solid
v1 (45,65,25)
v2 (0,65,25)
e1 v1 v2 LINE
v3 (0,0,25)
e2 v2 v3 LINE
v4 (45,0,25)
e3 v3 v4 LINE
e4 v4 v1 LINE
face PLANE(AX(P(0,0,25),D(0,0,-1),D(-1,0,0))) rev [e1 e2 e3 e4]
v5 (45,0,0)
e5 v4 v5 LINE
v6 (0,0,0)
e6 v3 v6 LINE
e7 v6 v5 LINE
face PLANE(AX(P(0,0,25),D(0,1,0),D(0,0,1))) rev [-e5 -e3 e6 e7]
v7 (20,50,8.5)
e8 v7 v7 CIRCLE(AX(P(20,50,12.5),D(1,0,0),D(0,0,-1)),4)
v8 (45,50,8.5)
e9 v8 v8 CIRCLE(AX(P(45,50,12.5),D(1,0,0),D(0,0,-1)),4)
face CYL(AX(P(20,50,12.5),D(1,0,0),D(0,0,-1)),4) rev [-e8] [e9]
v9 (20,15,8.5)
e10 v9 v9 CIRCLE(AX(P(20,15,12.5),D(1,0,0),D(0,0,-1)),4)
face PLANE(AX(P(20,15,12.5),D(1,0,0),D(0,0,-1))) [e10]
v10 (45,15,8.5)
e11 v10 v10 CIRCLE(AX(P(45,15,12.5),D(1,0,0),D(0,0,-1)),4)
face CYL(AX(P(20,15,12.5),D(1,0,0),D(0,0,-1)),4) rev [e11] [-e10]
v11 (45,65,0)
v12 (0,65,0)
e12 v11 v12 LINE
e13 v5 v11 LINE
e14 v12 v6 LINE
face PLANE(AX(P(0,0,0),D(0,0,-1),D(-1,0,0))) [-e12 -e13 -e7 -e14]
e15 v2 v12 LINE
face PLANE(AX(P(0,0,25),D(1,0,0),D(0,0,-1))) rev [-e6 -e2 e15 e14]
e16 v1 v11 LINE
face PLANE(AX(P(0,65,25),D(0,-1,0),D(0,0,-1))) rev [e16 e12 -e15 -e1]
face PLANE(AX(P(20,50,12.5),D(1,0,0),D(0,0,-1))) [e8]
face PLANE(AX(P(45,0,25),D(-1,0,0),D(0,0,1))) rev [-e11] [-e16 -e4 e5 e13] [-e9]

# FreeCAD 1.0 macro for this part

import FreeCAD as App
import Part
import Sketcher
from FreeCAD import Vector

doc = App.newDocument("Part")
body = doc.addObject("PartDesign::Body", "Body")

# Sketch on XY plane
sketch1 = body.newObject("Sketcher::SketchObject", "Sketch")
sketch1.AttachmentSupport = (doc.getObject("XY_Plane"), [""])
sketch1.MapMode = "FlatFace"
sketch1.addGeometry(Part.LineSegment(Vector(0, 65, 0), Vector(0, 0, 0)), False)
sketch1.addGeometry(Part.LineSegment(Vector(0, 0, 0), Vector(45, 0, 0)), False)
sketch1.addGeometry(Part.LineSegment(Vector(45, 0, 0), Vector(45, 65, 0)), False)
sketch1.addGeometry(Part.LineSegment(Vector(45, 65, 0), Vector(0, 65, 0)), False)
sketch1.addConstraint(Sketcher.Constraint("Coincident", 0, 2, 1, 1))
sketch1.addConstraint(Sketcher.Constraint("Coincident", 1, 2, 2, 1))
sketch1.addConstraint(Sketcher.Constraint("Coincident", 2, 2, 3, 1))
sketch1.addConstraint(Sketcher.Constraint("Coincident", 3, 2, 0, 1))
sketch1.addConstraint(Sketcher.Constraint("Vertical", 0))
sketch1.addConstraint(Sketcher.Constraint("Horizontal", 1))
sketch1.addConstraint(Sketcher.Constraint("Vertical", 2))
sketch1.addConstraint(Sketcher.Constraint("Horizontal", 3))
sketch1.addConstraint(Sketcher.Constraint("Coincident", 0, 2, -1, 1))
sketch1.addConstraint(Sketcher.Constraint("DistanceX", 1, 1, 1, 2, 45.0))
sketch1.addConstraint(Sketcher.Constraint("DistanceY", 0, 2, 0, 1, 65.0))
pad1 = body.newObject("PartDesign::Pad", "Pad")
pad1.Profile = sketch1
pad1.Length = 25

# Sketch on YZ plane
sketch2 = body.newObject("Sketcher::SketchObject", "Sketch001")
sketch2.AttachmentSupport = (doc.getObject("YZ_Plane"), [""])
sketch2.MapMode = "FlatFace"
sketch2.AttachmentOffset = App.Placement(Vector(0, 0, 45), App.Rotation())
sketch2.addGeometry(Part.Circle(Vector(50, 12.5, 0), Vector(0, 0, 1), 4), False)
sketch2.addGeometry(Part.Circle(Vector(15, 12.5, 0), Vector(0, 0, 1), 4), False)
sketch2.addConstraint(Sketcher.Constraint("Equal", 0, 1))
sketch2.addConstraint(Sketcher.Constraint("Horizontal", 0, 3, 1, 3))
sketch2.addConstraint(Sketcher.Constraint("Diameter", 0, 8.0))
sketch2.addConstraint(Sketcher.Constraint("DistanceX", -1, 1, 0, 3, 50.0))
sketch2.addConstraint(Sketcher.Constraint("DistanceX", -1, 1, 1, 3, 15.0))
sketch2.addConstraint(Sketcher.Constraint("DistanceY", -1, 1, 0, 3, 12.5))
pocket1 = body.newObject("PartDesign::Pocket", "Pocket")
pocket1.Profile = sketch2
pocket1.Length = 25

doc.recompute()
